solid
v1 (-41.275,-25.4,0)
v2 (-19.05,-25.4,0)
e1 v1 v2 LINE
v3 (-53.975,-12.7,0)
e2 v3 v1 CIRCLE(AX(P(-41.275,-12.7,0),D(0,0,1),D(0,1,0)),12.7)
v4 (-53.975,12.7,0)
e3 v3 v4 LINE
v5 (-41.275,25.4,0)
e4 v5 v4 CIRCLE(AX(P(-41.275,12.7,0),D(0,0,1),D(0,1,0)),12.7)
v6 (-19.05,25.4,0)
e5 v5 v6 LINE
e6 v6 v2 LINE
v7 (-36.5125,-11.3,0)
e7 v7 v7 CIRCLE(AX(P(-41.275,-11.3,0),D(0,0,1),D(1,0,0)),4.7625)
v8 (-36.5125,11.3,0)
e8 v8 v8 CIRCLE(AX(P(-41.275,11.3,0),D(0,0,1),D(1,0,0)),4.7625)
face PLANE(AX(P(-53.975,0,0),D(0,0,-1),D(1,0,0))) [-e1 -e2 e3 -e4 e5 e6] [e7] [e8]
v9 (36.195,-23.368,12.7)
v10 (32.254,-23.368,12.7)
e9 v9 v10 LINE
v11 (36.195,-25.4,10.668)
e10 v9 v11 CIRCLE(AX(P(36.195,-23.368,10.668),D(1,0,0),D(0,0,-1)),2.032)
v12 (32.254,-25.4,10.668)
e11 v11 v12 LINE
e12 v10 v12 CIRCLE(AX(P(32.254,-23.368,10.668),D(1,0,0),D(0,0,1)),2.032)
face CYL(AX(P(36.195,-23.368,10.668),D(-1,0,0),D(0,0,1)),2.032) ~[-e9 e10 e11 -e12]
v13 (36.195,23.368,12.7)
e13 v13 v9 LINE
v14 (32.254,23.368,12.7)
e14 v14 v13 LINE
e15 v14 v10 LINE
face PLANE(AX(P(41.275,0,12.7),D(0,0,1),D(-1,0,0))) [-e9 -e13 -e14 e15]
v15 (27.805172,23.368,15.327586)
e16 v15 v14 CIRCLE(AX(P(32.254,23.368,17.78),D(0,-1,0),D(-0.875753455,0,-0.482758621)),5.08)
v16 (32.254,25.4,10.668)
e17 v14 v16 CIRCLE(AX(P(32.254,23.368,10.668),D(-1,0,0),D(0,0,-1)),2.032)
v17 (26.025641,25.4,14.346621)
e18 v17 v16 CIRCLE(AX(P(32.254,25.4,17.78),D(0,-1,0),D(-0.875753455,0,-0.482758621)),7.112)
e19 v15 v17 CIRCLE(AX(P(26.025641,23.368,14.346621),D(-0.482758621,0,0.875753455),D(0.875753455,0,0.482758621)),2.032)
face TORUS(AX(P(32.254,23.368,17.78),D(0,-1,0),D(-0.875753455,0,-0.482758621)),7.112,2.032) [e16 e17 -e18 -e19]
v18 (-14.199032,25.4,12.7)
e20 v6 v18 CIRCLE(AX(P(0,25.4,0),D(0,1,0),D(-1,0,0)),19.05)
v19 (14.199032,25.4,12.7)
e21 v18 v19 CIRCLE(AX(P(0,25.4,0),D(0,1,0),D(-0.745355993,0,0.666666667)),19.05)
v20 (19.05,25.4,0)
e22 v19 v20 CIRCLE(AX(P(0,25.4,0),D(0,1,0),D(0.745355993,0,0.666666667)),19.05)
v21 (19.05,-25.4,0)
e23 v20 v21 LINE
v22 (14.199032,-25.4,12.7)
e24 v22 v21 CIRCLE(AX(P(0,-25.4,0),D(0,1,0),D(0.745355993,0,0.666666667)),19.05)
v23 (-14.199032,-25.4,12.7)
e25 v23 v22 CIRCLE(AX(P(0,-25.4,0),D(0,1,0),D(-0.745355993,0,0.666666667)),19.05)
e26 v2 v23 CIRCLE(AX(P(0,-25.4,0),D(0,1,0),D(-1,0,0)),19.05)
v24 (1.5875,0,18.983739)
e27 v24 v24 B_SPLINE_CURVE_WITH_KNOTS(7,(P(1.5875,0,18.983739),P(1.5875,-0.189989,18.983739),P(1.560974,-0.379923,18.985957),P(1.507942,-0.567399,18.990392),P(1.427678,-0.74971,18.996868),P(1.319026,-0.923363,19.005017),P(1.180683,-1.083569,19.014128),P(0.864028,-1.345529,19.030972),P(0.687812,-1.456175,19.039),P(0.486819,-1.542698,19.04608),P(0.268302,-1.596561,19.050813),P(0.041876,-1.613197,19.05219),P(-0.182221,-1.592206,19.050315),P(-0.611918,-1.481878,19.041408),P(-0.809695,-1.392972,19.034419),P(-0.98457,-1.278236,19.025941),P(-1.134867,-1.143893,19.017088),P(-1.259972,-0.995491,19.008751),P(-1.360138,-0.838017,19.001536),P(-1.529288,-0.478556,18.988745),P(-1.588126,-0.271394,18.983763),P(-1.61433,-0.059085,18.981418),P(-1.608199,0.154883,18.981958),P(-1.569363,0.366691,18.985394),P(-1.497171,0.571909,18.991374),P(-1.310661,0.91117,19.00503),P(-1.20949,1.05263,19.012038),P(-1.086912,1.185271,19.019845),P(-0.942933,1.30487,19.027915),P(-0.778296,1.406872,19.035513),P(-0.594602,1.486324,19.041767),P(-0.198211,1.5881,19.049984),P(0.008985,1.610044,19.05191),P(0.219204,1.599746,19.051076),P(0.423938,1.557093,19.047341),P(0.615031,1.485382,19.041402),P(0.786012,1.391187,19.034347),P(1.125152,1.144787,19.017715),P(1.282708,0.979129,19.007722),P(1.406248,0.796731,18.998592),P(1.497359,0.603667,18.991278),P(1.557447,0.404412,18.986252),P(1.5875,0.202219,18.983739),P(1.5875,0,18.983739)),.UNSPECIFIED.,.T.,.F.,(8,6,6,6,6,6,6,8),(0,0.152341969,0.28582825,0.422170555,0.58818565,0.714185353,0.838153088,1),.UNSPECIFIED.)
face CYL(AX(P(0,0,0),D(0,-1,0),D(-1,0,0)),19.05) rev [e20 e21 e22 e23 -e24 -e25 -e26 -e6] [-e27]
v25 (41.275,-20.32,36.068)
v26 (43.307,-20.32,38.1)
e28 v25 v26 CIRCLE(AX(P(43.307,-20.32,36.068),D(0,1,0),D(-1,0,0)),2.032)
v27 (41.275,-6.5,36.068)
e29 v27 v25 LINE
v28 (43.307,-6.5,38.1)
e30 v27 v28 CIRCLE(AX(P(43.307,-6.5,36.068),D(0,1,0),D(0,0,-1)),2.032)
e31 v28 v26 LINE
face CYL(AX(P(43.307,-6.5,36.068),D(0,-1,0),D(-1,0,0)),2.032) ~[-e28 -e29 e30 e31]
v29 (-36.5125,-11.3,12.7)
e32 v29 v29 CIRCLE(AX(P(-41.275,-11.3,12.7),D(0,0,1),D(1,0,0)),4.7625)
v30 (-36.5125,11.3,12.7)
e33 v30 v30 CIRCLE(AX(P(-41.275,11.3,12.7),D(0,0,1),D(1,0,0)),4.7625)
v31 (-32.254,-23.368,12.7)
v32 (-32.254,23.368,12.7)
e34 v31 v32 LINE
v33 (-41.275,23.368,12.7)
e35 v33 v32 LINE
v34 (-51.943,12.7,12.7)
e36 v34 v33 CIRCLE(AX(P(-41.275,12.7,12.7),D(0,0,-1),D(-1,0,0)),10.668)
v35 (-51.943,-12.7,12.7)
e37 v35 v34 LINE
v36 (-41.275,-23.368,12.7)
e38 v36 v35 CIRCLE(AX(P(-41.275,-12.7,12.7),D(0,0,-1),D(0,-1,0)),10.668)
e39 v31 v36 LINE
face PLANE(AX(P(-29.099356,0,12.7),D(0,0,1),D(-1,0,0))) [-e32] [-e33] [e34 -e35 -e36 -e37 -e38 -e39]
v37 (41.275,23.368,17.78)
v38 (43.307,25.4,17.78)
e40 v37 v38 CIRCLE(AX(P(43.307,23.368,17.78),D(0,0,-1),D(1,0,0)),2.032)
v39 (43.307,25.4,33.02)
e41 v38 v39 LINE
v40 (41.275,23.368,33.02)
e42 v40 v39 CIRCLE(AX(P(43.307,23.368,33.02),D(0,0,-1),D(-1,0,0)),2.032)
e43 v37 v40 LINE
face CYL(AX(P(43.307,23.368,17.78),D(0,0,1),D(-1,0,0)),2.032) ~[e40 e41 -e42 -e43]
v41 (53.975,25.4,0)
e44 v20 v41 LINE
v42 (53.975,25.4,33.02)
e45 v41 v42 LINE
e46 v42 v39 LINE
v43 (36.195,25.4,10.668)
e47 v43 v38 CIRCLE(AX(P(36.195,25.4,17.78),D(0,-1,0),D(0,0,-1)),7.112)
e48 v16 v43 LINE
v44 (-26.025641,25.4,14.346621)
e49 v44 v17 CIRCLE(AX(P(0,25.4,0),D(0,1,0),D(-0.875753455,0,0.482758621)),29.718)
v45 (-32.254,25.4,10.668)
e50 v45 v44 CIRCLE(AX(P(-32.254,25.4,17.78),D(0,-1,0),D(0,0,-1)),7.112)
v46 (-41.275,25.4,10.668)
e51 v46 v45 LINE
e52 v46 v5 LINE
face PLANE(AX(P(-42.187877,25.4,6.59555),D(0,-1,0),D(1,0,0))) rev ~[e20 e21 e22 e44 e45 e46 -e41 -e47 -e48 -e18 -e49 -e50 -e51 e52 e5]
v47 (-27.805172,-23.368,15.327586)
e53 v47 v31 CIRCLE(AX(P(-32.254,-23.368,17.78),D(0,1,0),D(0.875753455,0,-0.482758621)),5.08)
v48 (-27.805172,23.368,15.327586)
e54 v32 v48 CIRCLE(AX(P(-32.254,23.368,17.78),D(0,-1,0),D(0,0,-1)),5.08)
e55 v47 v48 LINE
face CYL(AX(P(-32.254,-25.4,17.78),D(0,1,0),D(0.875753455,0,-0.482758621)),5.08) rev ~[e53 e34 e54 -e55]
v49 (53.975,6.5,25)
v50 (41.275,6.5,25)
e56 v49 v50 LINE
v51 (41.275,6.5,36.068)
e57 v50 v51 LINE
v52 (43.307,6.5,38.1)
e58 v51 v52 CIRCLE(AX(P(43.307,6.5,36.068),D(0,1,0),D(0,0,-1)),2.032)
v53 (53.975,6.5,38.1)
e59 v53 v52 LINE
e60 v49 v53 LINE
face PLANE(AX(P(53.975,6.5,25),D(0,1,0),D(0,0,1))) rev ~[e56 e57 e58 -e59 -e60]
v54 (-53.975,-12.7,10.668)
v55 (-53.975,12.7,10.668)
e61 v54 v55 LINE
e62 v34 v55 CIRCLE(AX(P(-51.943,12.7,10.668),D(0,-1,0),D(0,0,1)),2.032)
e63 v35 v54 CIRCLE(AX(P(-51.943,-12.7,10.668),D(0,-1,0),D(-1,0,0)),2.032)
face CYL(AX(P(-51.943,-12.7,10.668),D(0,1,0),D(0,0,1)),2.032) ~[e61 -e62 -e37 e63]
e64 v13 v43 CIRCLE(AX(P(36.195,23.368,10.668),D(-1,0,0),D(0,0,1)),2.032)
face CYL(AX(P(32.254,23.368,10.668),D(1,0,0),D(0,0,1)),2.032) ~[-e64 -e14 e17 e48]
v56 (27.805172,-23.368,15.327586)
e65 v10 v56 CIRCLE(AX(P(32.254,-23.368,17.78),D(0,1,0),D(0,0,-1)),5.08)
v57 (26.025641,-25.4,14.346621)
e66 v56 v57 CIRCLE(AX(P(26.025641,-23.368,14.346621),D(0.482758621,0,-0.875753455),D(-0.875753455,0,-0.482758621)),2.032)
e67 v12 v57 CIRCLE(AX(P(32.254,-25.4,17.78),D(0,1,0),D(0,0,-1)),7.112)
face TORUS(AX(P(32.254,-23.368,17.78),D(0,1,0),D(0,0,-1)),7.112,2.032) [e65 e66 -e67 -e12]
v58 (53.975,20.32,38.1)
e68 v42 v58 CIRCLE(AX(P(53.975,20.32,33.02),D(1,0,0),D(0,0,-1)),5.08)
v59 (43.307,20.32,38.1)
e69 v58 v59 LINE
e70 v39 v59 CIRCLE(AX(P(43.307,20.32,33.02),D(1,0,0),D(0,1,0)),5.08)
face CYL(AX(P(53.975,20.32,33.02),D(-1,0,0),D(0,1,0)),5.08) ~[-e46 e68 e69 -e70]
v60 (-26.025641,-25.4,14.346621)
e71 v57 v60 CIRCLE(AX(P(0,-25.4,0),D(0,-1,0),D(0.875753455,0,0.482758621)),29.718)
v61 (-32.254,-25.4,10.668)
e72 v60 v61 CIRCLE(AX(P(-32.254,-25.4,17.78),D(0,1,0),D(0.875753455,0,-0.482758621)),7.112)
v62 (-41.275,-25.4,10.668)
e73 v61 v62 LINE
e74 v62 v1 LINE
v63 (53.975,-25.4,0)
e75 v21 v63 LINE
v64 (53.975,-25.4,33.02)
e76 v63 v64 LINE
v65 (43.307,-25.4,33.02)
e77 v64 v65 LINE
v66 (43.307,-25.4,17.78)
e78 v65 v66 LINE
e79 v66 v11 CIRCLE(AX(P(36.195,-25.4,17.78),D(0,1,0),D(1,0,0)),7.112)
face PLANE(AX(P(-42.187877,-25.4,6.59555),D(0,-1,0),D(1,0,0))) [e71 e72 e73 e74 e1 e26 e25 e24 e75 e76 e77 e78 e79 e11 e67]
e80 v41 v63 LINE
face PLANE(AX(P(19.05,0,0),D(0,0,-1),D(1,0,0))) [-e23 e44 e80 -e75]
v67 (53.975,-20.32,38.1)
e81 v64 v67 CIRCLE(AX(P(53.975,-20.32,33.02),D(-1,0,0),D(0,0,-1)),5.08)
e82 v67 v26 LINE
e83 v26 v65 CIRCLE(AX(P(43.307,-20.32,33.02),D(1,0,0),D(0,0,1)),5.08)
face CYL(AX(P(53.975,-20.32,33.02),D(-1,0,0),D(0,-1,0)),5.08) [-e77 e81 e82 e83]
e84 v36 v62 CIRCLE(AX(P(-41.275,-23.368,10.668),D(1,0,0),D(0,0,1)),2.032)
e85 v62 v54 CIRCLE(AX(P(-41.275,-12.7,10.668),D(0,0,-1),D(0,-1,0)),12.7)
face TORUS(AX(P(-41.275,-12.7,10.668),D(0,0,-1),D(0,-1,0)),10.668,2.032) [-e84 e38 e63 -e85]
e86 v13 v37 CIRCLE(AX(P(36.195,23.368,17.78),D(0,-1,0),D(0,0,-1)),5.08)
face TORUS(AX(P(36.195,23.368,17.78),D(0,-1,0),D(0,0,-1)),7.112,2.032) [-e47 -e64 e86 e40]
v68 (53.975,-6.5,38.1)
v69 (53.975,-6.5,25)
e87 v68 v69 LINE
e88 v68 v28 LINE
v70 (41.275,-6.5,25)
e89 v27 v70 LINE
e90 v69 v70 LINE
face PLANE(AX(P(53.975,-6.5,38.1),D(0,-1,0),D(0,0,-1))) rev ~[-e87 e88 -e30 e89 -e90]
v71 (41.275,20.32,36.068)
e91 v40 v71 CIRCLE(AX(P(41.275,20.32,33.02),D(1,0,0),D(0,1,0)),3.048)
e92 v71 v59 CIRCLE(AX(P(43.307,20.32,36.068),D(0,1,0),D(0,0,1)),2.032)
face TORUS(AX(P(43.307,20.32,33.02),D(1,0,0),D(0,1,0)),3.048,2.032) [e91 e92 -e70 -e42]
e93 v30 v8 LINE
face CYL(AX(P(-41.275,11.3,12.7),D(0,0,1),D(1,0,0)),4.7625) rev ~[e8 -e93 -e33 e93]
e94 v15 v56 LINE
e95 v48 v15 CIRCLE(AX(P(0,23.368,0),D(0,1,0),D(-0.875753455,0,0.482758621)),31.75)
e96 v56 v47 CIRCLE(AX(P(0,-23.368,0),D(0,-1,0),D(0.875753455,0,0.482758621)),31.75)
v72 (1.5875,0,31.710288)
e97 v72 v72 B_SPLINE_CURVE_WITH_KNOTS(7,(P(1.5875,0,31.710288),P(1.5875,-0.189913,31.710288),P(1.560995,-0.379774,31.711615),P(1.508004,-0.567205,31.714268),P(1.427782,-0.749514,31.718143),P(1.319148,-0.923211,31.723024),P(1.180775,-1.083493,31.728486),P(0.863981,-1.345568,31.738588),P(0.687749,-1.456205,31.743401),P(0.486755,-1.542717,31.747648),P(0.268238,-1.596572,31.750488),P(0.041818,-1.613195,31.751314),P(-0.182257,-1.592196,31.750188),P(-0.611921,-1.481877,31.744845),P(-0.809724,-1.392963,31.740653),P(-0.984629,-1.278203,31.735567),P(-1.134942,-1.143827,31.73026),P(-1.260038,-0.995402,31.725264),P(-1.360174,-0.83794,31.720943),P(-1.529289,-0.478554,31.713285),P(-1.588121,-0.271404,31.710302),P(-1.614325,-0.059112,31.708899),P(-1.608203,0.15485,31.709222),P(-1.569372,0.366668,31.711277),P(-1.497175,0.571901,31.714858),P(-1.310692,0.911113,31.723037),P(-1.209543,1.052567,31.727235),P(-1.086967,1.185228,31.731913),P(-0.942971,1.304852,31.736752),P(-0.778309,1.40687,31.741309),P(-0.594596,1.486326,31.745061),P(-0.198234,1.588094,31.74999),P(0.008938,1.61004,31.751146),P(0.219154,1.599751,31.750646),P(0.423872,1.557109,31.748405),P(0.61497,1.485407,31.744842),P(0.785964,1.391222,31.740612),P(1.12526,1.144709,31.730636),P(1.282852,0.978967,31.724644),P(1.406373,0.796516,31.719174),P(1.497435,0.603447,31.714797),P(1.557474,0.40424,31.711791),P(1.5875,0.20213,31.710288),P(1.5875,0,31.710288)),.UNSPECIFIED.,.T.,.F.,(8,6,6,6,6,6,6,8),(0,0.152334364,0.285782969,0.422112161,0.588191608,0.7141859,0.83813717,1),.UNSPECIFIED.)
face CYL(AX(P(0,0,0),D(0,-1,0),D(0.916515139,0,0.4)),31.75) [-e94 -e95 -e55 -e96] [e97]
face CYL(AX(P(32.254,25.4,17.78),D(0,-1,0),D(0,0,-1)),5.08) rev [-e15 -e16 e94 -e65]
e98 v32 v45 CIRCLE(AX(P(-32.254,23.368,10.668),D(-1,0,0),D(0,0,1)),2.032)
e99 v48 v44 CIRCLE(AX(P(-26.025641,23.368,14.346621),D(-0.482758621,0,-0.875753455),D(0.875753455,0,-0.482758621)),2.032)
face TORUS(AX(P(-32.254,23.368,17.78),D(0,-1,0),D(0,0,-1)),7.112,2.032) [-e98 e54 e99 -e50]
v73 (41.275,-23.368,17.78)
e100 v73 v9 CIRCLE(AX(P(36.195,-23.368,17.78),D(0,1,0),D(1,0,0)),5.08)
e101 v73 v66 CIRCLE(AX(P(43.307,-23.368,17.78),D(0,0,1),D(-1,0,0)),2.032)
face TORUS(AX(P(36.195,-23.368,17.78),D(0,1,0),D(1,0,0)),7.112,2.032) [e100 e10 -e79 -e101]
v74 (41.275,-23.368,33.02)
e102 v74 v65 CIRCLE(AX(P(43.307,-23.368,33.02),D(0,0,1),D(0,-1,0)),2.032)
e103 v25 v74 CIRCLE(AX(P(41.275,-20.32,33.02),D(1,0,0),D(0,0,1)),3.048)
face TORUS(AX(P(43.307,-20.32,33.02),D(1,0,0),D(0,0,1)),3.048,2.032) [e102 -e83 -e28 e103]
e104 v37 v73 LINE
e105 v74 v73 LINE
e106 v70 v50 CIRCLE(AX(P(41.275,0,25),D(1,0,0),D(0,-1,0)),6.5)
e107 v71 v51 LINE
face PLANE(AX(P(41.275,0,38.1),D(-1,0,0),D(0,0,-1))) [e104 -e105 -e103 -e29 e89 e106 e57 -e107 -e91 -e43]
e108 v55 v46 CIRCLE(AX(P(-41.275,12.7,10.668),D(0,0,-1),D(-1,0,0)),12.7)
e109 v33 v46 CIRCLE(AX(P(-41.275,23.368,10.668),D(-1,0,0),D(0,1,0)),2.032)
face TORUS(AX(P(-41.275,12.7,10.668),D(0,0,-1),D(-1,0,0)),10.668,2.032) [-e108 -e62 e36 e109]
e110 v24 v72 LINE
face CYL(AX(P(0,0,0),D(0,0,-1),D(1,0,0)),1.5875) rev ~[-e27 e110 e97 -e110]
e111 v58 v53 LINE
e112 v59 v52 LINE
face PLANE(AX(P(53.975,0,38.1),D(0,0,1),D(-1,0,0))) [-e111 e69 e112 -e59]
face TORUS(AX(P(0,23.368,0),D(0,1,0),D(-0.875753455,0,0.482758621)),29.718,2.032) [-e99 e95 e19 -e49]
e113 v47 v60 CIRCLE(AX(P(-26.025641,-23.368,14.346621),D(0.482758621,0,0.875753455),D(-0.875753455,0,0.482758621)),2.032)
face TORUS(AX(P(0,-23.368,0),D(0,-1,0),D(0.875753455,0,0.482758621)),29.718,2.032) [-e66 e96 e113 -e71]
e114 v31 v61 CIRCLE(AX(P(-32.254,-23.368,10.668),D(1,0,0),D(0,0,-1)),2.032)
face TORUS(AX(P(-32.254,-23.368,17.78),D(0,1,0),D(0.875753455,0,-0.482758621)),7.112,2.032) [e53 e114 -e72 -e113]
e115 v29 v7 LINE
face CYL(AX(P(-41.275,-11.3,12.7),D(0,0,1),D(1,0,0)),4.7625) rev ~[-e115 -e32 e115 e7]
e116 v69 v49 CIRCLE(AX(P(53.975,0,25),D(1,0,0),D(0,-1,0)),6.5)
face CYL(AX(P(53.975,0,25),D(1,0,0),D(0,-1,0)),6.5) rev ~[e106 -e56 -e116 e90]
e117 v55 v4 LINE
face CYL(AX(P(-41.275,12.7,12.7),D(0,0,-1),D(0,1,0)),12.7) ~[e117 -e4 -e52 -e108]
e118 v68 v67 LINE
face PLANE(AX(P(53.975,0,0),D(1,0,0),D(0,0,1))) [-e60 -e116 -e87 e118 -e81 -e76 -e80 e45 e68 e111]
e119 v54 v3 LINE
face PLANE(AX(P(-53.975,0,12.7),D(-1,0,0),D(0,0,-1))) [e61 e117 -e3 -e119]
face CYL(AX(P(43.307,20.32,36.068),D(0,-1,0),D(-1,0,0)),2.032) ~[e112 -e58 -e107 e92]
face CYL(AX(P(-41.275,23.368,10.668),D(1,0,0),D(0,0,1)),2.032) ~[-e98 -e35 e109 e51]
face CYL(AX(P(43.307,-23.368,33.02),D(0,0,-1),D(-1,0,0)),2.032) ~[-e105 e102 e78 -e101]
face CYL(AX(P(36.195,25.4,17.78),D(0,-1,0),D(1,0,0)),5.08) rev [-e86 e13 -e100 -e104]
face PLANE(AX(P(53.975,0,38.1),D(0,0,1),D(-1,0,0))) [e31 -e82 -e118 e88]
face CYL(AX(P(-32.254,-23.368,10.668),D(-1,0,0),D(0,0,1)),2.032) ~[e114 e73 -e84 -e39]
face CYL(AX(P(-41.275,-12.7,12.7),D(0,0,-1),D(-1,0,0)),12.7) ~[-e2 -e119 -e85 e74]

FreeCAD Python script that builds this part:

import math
import FreeCAD as App
import Part
import Sketcher
from FreeCAD import Vector
Q = App.Units.Quantity


def edges_at(feature, points):
    """Names of the edges that pass closest to the given points."""
    edges = feature.Shape.Edges
    near = lambda p: min(range(len(edges)), key=lambda i: edges[i].distToShape(Part.Vertex(*p))[0])
    return sorted({f"Edge{near(p) + 1}" for p in points})

doc = App.newDocument("Part")
body = doc.addObject("PartDesign::Body", "Body")

# Sketch on XZ plane
sketch1 = body.newObject("Sketcher::SketchObject", "Sketch")
sketch1.AttachmentSupport = (doc.getObject("XZ_Plane"), [""])
sketch1.MapMode = "FlatFace"
sketch1.addGeometry([
    Part.LineSegment(Vector(-54, 0, 0), Vector(-19, 0, 0)),  # 0
    Part.ArcOfCircle(Part.Circle(Vector(0, 0, 0), Vector(0, 0, 1), 19), math.radians(138), math.radians(180)),  # 1
    Part.ArcOfCircle(Part.Circle(Vector(0, 0, 0), Vector(0, 0, 1), 19), math.radians(42), math.radians(138)),  # 2
    Part.ArcOfCircle(Part.Circle(Vector(0, 0, 0), Vector(0, 0, 1), 19), math.radians(0), math.radians(42)),  # 3
    Part.LineSegment(Vector(19, 0, 0), Vector(54, 0, 0)),  # 4
    Part.LineSegment(Vector(54, 0, 0), Vector(54, 38, 0)),  # 5
    Part.LineSegment(Vector(54, 38, 0), Vector(41, 38, 0)),  # 6
    Part.LineSegment(Vector(41, 38, 0), Vector(41, 13, 0)),  # 7
    Part.LineSegment(Vector(41, 13, 0), Vector(29, 13, 0)),  # 8
    Part.ArcOfCircle(Part.Circle(Vector(0, 0, 0), Vector(0, 0, 1), 32), math.radians(24), math.radians(156)),  # 9
    Part.LineSegment(Vector(-29, 13, 0), Vector(-54, 13, 0)),  # 10
    Part.LineSegment(Vector(-54, 13, 0), Vector(-54, 0, 0)),  # 11
], False)
sketch1.addConstraint([
    Sketcher.Constraint("Coincident", 0, 2, 1, 2),
    Sketcher.Constraint("Tangent", 1, 1, 2, 2),
    Sketcher.Constraint("Tangent", 2, 1, 3, 2),
    Sketcher.Constraint("Coincident", 3, 1, 4, 1),
    Sketcher.Constraint("Coincident", 4, 2, 5, 1),
    Sketcher.Constraint("Coincident", 5, 2, 6, 1),
    Sketcher.Constraint("Coincident", 6, 2, 7, 1),
    Sketcher.Constraint("Coincident", 7, 2, 8, 1),
    Sketcher.Constraint("Coincident", 8, 2, 9, 1),
    Sketcher.Constraint("Coincident", 9, 2, 10, 1),
    Sketcher.Constraint("Coincident", 10, 2, 11, 1),
    Sketcher.Constraint("Coincident", 11, 2, 0, 1),
    Sketcher.Constraint("Horizontal", 0),
    Sketcher.Constraint("Horizontal", 4),
    Sketcher.Constraint("Vertical", 5),
    Sketcher.Constraint("Horizontal", 6),
    Sketcher.Constraint("Vertical", 7),
    Sketcher.Constraint("Horizontal", 8),
    Sketcher.Constraint("Horizontal", 10),
    Sketcher.Constraint("Vertical", 11),
    Sketcher.Constraint("Coincident", 1, 3, -1, 1),
    Sketcher.Constraint("Coincident", 3, 3, -1, 1),
    Sketcher.Constraint("Coincident", 9, 3, -1, 1),
    Sketcher.Constraint("Symmetric", 4, 2, 11, 2, -1, 1),
    Sketcher.Constraint("PointOnObject", 0, 2, -1),
    Sketcher.Constraint("Horizontal", 1, 1, 2, 1),
    Sketcher.Constraint("Horizontal", 2, 1, 7, 2),
    Sketcher.Constraint("Horizontal", 8, 2, 9, 2),
    Sketcher.Constraint("Equal", 6, 11),
    Sketcher.Constraint("DistanceY", 7, 2, 7, 1, Q("1 in")),
    Sketcher.Constraint("Radius", 1, Q("0.75 in")),
    Sketcher.Constraint("Radius", 9, Q("1.25 in")),
    Sketcher.Constraint("DistanceX", 6, 2, 6, 1, Q("0.5 in")),
    Sketcher.Constraint("DistanceX", 0, 1, 0, 2, Q("1.375 in")),
])
pad1 = body.newObject("PartDesign::Pad", "Pad")
pad1.Profile = sketch1
pad1.Length = Q("2 in")
pad1.Midplane = True

# Sketch on XY plane
sketch2 = body.newObject("Sketcher::SketchObject", "Sketch001")
sketch2.AttachmentSupport = (doc.getObject("XY_Plane"), [""])
sketch2.MapMode = "FlatFace"
sketch2.AttachmentOffset = App.Placement(Vector(0, 0, 0.5 * 25.4), App.Rotation())
sketch2.addGeometry([
    Part.Circle(Vector(-41.3, 11.3, 0), Vector(0, 0, 1), 4.8),
    Part.Circle(Vector(-41.3, -11.3, 0), Vector(0, 0, 1), 4.8),
], False)
sketch2.addConstraint([
    Sketcher.Constraint("Equal", 0, 1),
    Sketcher.Constraint("Symmetric", 0, 3, 1, 3, -1),
    Sketcher.Constraint("Diameter", 0, Q("0.375 in")),
    Sketcher.Constraint("DistanceX", 0, 3, -1, 1, Q("1.625 in")),
    Sketcher.Constraint("DistanceY", -1, 1, 0, 3, Q("11.3 mm")),
])
pocket1 = body.newObject("PartDesign::Pocket", "Pocket")
pocket1.Profile = sketch2
pocket1.Type = "ThroughAll"

# Sketch on YZ plane
sketch3 = body.newObject("Sketcher::SketchObject", "Sketch002")
sketch3.AttachmentSupport = (doc.getObject("YZ_Plane"), [""])
sketch3.MapMode = "FlatFace"
sketch3.AttachmentOffset = App.Placement(Vector(0, 0, 2.125 * 25.4), App.Rotation())
sketch3.addGeometry([
    Part.LineSegment(Vector(6, 38, 0), Vector(-6, 38, 0)),
    Part.LineSegment(Vector(-6, 38, 0), Vector(-6, 25, 0)),
    Part.ArcOfCircle(Part.Circle(Vector(0, 25, 0), Vector(0, 0, 1), 6), math.radians(180), math.radians(360)),
    Part.LineSegment(Vector(6, 25, 0), Vector(6, 38, 0)),
], False)
sketch3.addConstraint([
    Sketcher.Constraint("Coincident", 0, 2, 1, 1),
    Sketcher.Constraint("Tangent", 1, 2, 2, 1),
    Sketcher.Constraint("Tangent", 2, 2, 3, 1),
    Sketcher.Constraint("Coincident", 3, 2, 0, 1),
    Sketcher.Constraint("Horizontal", 0),
    Sketcher.Constraint("Vertical", 1),
    Sketcher.Constraint("Vertical", 3),
    Sketcher.Constraint("PointOnObject", 2, 3, -2),
    Sketcher.Constraint("DistanceY", -1, 1, 0, 2, Q("1.5 in")),
    Sketcher.Constraint("Radius", 2, Q("6.5 mm")),
    Sketcher.Constraint("DistanceY", 1, 2, 1, 1, Q("13.1 mm")),
])
pocket2 = body.newObject("PartDesign::Pocket", "Pocket001")
pocket2.Profile = sketch3
pocket2.Length = Q("0.5 in")

# Sketch on XY plane
sketch4 = body.newObject("Sketcher::SketchObject", "Sketch003")
sketch4.AttachmentSupport = (doc.getObject("XY_Plane"), [""])
sketch4.MapMode = "FlatFace"
sketch4.addGeometry(Part.Circle(Vector(0, 0, 0), Vector(0, 0, 1), 1.6), False)
sketch4.addConstraint([
    Sketcher.Constraint("Coincident", 0, 3, -1, 1),
    Sketcher.Constraint("Diameter", 0, Q("0.125 in")),
])
pocket3 = body.newObject("PartDesign::Pocket", "Pocket002")
pocket3.Profile = sketch4
pocket3.Type = "ThroughAll"
pocket3.Reversed = True
doc.recompute()

fillet = body.newObject("PartDesign::Fillet", "Fillet")
fillet.Base = (pocket3, edges_at(pocket3, [
    (47.625, -25.4, 38.1),
    (47.625, 25.4, 38.1),
    (29.099, 0, 12.7),
    (41.275, 0, 12.7),
    (-29.099, 0, 12.7),
]))
fillet.Radius = Q("0.2 in")
doc.recompute()

fillet2 = body.newObject("PartDesign::Fillet", "Fillet001")
fillet2.Base = (fillet, edges_at(fillet, [(-53.975, 25.4, 6.35), (-53.975, -25.4, 6.35)]))
fillet2.Radius = Q("0.5 in")
doc.recompute()

fillet3 = body.newObject("PartDesign::Fillet", "Fillet002")
fillet3.Base = (fillet2, edges_at(fillet2, [(-36.764, -25.4, 12.7)]))
fillet3.Radius = Q("0.08 in")

doc.recompute()
